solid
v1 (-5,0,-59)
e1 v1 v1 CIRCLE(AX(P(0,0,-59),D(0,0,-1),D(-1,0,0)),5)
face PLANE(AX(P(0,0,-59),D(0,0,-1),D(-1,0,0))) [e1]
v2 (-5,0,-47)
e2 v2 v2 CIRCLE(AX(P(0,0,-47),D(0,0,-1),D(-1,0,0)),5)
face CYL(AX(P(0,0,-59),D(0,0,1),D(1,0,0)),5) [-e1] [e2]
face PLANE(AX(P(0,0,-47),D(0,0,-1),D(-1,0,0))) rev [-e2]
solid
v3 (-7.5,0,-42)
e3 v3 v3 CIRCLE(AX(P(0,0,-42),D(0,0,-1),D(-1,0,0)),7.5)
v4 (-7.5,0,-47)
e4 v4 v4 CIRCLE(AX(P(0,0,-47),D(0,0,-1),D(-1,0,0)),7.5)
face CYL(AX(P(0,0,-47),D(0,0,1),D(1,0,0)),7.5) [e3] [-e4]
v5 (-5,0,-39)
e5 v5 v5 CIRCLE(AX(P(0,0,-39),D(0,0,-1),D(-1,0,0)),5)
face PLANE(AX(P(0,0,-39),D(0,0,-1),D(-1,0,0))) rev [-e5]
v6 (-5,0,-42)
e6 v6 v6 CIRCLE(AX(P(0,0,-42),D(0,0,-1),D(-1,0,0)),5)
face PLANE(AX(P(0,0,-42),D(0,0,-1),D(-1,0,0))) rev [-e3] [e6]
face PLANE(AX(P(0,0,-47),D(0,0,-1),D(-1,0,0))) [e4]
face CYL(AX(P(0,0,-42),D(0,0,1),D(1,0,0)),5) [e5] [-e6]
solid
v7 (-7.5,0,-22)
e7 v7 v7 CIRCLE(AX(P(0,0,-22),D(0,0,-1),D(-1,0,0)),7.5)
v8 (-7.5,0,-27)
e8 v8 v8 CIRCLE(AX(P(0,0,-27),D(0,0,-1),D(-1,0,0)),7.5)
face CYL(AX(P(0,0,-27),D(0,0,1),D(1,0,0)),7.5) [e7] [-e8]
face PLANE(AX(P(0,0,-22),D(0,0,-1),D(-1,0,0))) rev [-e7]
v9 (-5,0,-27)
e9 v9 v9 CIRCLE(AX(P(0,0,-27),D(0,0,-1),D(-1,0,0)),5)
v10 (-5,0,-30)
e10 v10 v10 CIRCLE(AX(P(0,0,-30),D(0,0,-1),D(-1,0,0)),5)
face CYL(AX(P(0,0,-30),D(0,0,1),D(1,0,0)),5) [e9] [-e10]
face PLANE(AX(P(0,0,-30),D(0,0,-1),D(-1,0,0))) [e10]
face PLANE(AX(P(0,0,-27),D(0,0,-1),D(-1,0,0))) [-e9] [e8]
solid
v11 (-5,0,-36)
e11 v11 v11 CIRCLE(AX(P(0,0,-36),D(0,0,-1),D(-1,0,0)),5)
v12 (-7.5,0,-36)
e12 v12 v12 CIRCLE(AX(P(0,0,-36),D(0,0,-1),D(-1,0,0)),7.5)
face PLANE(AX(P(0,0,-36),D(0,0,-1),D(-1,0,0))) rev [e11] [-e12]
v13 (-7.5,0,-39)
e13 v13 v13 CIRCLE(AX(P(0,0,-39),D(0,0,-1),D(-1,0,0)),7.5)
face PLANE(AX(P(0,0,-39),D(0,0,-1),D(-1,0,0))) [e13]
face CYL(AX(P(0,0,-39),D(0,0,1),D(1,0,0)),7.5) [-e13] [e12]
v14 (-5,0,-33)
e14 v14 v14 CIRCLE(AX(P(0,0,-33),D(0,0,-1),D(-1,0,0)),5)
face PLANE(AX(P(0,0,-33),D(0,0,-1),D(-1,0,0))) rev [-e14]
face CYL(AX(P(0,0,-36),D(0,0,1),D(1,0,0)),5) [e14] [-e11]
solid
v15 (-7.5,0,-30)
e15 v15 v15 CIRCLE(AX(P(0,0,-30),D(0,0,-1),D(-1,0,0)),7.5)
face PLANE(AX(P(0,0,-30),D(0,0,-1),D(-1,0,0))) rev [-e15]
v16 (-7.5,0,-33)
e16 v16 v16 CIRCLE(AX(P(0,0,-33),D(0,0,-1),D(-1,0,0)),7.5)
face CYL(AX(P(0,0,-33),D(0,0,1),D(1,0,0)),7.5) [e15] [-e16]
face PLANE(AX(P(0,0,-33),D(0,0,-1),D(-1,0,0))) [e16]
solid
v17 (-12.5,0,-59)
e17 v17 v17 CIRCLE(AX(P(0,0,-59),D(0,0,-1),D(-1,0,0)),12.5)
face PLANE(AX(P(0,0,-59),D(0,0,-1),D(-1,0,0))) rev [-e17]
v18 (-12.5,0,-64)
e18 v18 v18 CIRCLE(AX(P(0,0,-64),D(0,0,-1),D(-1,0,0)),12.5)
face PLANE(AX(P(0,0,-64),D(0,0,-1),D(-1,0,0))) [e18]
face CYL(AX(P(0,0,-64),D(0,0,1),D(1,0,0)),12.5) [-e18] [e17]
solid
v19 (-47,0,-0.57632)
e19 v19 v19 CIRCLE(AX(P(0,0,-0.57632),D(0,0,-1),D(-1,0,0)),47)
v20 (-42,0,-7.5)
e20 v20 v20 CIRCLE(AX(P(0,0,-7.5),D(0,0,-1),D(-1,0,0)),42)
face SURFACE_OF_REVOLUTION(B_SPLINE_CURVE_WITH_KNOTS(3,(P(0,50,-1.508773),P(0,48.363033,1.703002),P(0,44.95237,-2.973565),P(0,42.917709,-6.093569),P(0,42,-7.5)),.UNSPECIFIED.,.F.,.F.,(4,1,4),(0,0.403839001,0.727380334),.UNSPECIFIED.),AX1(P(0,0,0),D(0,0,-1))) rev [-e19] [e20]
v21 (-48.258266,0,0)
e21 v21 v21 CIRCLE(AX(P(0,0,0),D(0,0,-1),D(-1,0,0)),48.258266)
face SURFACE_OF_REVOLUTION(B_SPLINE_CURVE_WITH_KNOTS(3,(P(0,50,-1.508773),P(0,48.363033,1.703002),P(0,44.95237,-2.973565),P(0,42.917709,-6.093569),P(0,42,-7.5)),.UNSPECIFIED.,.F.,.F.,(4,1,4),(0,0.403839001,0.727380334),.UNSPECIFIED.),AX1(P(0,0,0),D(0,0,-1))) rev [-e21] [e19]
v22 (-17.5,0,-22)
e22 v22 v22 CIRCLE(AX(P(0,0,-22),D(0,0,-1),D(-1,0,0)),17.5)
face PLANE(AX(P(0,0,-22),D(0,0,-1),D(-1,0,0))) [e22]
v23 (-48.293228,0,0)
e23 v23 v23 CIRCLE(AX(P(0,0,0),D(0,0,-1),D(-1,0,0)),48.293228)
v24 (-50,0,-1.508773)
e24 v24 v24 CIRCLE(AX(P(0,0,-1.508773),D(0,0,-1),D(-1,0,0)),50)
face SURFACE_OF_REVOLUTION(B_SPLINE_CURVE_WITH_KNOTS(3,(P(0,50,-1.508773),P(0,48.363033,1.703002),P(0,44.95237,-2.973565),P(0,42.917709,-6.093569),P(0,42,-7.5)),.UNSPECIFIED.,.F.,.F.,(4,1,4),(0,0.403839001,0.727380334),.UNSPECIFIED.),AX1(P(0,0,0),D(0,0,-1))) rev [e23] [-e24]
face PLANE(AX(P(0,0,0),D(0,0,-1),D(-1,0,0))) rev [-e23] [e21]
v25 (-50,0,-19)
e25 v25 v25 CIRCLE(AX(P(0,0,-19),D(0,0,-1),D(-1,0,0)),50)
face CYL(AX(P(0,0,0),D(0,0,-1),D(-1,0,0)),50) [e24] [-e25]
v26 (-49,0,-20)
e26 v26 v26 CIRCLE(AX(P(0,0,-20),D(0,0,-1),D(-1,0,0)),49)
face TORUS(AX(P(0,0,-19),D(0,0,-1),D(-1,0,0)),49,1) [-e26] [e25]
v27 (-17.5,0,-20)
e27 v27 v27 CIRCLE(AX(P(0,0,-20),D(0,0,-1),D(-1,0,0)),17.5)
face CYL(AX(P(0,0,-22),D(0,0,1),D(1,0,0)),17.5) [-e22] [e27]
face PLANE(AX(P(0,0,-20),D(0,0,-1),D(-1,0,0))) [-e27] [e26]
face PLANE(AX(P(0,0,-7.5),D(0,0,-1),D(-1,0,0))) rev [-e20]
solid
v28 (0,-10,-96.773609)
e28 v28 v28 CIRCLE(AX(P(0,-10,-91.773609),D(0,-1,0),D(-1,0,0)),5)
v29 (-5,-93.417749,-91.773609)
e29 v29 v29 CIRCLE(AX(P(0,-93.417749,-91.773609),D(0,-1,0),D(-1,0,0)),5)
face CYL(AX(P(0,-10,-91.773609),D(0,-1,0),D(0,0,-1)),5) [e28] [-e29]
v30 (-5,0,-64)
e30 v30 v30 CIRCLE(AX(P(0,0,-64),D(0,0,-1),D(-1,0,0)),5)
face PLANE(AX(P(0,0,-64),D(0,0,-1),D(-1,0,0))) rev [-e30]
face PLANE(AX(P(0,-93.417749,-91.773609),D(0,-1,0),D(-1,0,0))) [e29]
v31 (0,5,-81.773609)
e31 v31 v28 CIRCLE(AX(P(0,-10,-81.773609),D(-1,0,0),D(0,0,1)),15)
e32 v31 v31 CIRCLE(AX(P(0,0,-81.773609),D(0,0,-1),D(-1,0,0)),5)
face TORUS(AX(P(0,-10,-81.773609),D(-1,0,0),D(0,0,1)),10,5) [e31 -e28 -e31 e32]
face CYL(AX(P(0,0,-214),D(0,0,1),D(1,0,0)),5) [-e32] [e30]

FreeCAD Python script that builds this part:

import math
import FreeCAD as App
import Part
import Sketcher
from FreeCAD import Vector
Q = App.Units.Quantity


def add_polygon(sketch, points):
    """Adds a closed chain of lines whose ends are joined by coincident constraints."""
    first, n = sketch.GeometryCount, len(points)
    for a, b in zip(points, points[1:] + points[:1]):
        sketch.addGeometry(Part.LineSegment(App.Vector(*a, 0), App.Vector(*b, 0)), False)
    for i in range(n):
        sketch.addConstraint(Sketcher.Constraint("Coincident", first + i, 2, first + (i + 1) % n, 1))

doc = App.newDocument("Part")
body = doc.addObject("PartDesign::Body", "Body")

# Sketch on YZ plane
sketch1 = body.newObject("Sketcher::SketchObject", "Sketch")
sketch1.AttachmentSupport = (doc.getObject("YZ_Plane"), [""])
sketch1.MapMode = "FlatFace"
sketch1.addGeometry([
    Part.LineSegment(Vector(42, -7.5, 0), Vector(0, -7.5, 0)),  # 0
    Part.LineSegment(Vector(0, -7.5, 0), Vector(0, -20, 0)),  # 1
    Part.LineSegment(Vector(0, -20, 0), Vector(49, -20, 0)),  # 2
    Part.ArcOfCircle(Part.Circle(Vector(49, -19, 0), Vector(0, 0, 1), 1), math.radians(-90), math.radians(0)),  # 3
    Part.LineSegment(Vector(50, -19, 0), Vector(50, -1.508773, 0)),  # 4
    Part.BSplineCurve([Vector(50, -1.508773, 0), Vector(49.451359, -0.432324, 0), Vector(48.873892, -0.008311, 0), Vector(48.293228, 0, 0)], [4, 4], [0, 0.135349479], False, 3, [1, 1, 1, 1], False),  # 5
    Part.LineSegment(Vector(48.293228, 0, 0), Vector(48.258266, 0, 0)),  # 6
    Part.BSplineCurve([Vector(48.258266, 0, 0), Vector(47.117838, -0.016256, 0), Vector(44.566167, -3.56578, 0), Vector(42.917709, -6.093569, 0), Vector(42, -7.5, 0)], [4, 1, 4], [0.138065657, 0.403839001, 0.727380334], False, 3, [1, 1, 1, 1, 1], False),  # 7
], False)
sketch1.addConstraint([
    Sketcher.Constraint("Block", 5),
    Sketcher.Constraint("Block", 7),
    Sketcher.Constraint("Coincident", 0, 2, 1, 1),
    Sketcher.Constraint("Coincident", 1, 2, 2, 1),
    Sketcher.Constraint("Tangent", 2, 2, 3, 1),
    Sketcher.Constraint("Tangent", 3, 2, 4, 1),
    Sketcher.Constraint("Coincident", 4, 2, 5, 1),
    Sketcher.Constraint("Coincident", 5, 2, 6, 1),
    Sketcher.Constraint("Coincident", 6, 2, 7, 1),
    Sketcher.Constraint("Coincident", 7, 2, 0, 1),
    Sketcher.Constraint("Horizontal", 0),
    Sketcher.Constraint("Vertical", 1),
    Sketcher.Constraint("Horizontal", 2),
    Sketcher.Constraint("Vertical", 4),
    Sketcher.Constraint("PointOnObject", 0, 2, -2),
    Sketcher.Constraint("Radius", 3, Q("1 mm")),
    Sketcher.Constraint("DistanceY", 1, 2, 1, 1, Q("12.5 mm")),
])
revolution = body.newObject("PartDesign::Revolution", "Revolution")
revolution.Profile = sketch1
revolution.ReferenceAxis = (sketch1, ["V_Axis"])
revolution.Angle = 360

# Sketch on XY plane
sketch2 = body.newObject("Sketcher::SketchObject", "Sketch001")
sketch2.AttachmentSupport = (doc.getObject("XY_Plane"), [""])
sketch2.MapMode = "FlatFace"
sketch2.AttachmentOffset = App.Placement(Vector(0, 0, -20), App.Rotation())
sketch2.addGeometry(Part.Circle(Vector(0, 0, 0), Vector(0, 0, 1), 18), False)
sketch2.addConstraint([
    Sketcher.Constraint("Coincident", 0, 3, -1, 1),
    Sketcher.Constraint("Diameter", 0, Q("35 mm")),
])
pad1 = body.newObject("PartDesign::Pad", "Pad")
pad1.Profile = sketch2
pad1.Length = 2
pad1.Reversed = True
body2 = doc.addObject("PartDesign::Body", "Body001")

# Sketch on XY plane
sketch3 = body2.newObject("Sketcher::SketchObject", "Sketch002")
sketch3.AttachmentSupport = (doc.getObject("XY_Plane001"), [""])
sketch3.MapMode = "FlatFace"
sketch3.AttachmentOffset = App.Placement(Vector(0, 0, -22), App.Rotation())
sketch3.addGeometry(Part.Circle(Vector(0, 0, 0), Vector(0, 0, 1), 8), False)
sketch3.addConstraint([
    Sketcher.Constraint("Coincident", 0, 3, -1, 1),
    Sketcher.Constraint("Diameter", 0, Q("15 mm")),
])
pad2 = body2.newObject("PartDesign::Pad", "Pad001")
pad2.Profile = sketch3
pad2.Length = 5
pad2.Reversed = True

# Sketch on XY plane
sketch4 = body2.newObject("Sketcher::SketchObject", "Sketch003")
sketch4.AttachmentSupport = (doc.getObject("XY_Plane001"), [""])
sketch4.MapMode = "FlatFace"
sketch4.AttachmentOffset = App.Placement(Vector(0, 0, -27), App.Rotation())
sketch4.addGeometry(Part.Circle(Vector(0, 0, 0), Vector(0, 0, 1), 5), False)
sketch4.addConstraint([
    Sketcher.Constraint("Coincident", 0, 3, -1, 1),
    Sketcher.Constraint("Diameter", 0, Q("10 mm")),
])
pad3 = body2.newObject("PartDesign::Pad", "Pad002")
pad3.Profile = sketch4
pad3.Length = 3
pad3.Reversed = True
body3 = doc.addObject("PartDesign::Body", "Body002")

# Sketch on XY plane
sketch5 = body3.newObject("Sketcher::SketchObject", "Sketch004")
sketch5.AttachmentSupport = (doc.getObject("XY_Plane002"), [""])
sketch5.MapMode = "FlatFace"
sketch5.AttachmentOffset = App.Placement(Vector(0, 0, -30), App.Rotation())
sketch5.addGeometry(Part.Circle(Vector(0, 0, 0), Vector(0, 0, 1), 8), False)
sketch5.addConstraint([
    Sketcher.Constraint("Coincident", 0, 3, -1, 1),
    Sketcher.Constraint("Diameter", 0, Q("15 mm")),
])
pad4 = body3.newObject("PartDesign::Pad", "Pad003")
pad4.Profile = sketch5
pad4.Length = 3
pad4.Reversed = True
body4 = doc.addObject("PartDesign::Body", "Body003")

# Sketch on XY plane
sketch6 = body4.newObject("Sketcher::SketchObject", "Sketch005")
sketch6.AttachmentSupport = (doc.getObject("XY_Plane003"), [""])
sketch6.MapMode = "FlatFace"
sketch6.AttachmentOffset = App.Placement(Vector(0, 0, -33), App.Rotation())
sketch6.addGeometry(Part.Circle(Vector(0, 0, 0), Vector(0, 0, 1), 5), False)
sketch6.addConstraint([
    Sketcher.Constraint("Coincident", 0, 3, -1, 1),
    Sketcher.Constraint("Diameter", 0, Q("10 mm")),
])
pad5 = body4.newObject("PartDesign::Pad", "Pad004")
pad5.Profile = sketch6
pad5.Length = 3
pad5.Reversed = True

# Sketch on XY plane
sketch7 = body4.newObject("Sketcher::SketchObject", "Sketch006")
sketch7.AttachmentSupport = (doc.getObject("XY_Plane003"), [""])
sketch7.MapMode = "FlatFace"
sketch7.AttachmentOffset = App.Placement(Vector(0, 0, -36), App.Rotation())
sketch7.addGeometry(Part.Circle(Vector(0, 0, 0), Vector(0, 0, 1), 8), False)
sketch7.addConstraint([
    Sketcher.Constraint("Coincident", 0, 3, -1, 1),
    Sketcher.Constraint("Diameter", 0, Q("15 mm")),
])
pad6 = body4.newObject("PartDesign::Pad", "Pad005")
pad6.Profile = sketch7
pad6.Length = 3
pad6.Reversed = True
body5 = doc.addObject("PartDesign::Body", "Body004")

# Sketch on XY plane
sketch8 = body5.newObject("Sketcher::SketchObject", "Sketch007")
sketch8.AttachmentSupport = (doc.getObject("XY_Plane004"), [""])
sketch8.MapMode = "FlatFace"
sketch8.AttachmentOffset = App.Placement(Vector(0, 0, -39), App.Rotation())
sketch8.addGeometry(Part.Circle(Vector(0, 0, 0), Vector(0, 0, 1), 5), False)
sketch8.addConstraint([
    Sketcher.Constraint("Coincident", 0, 3, -1, 1),
    Sketcher.Constraint("Diameter", 0, Q("10 mm")),
])
pad7 = body5.newObject("PartDesign::Pad", "Pad006")
pad7.Profile = sketch8
pad7.Length = 3
pad7.Reversed = True

# Sketch on XY plane
sketch9 = body5.newObject("Sketcher::SketchObject", "Sketch008")
sketch9.AttachmentSupport = (doc.getObject("XY_Plane004"), [""])
sketch9.MapMode = "FlatFace"
sketch9.AttachmentOffset = App.Placement(Vector(0, 0, -42), App.Rotation())
sketch9.addGeometry(Part.Circle(Vector(0, 0, 0), Vector(0, 0, 1), 8), False)
sketch9.addConstraint([
    Sketcher.Constraint("Coincident", 0, 3, -1, 1),
    Sketcher.Constraint("Diameter", 0, Q("15 mm")),
])
pad8 = body5.newObject("PartDesign::Pad", "Pad007")
pad8.Profile = sketch9
pad8.Length = 5
pad8.Reversed = True
body6 = doc.addObject("PartDesign::Body", "Body005")

# Sketch on XY plane
sketch10 = body6.newObject("Sketcher::SketchObject", "Sketch009")
sketch10.AttachmentSupport = (doc.getObject("XY_Plane005"), [""])
sketch10.MapMode = "FlatFace"
sketch10.AttachmentOffset = App.Placement(Vector(0, 0, -47), App.Rotation())
sketch10.addGeometry(Part.Circle(Vector(0, 0, 0), Vector(0, 0, 1), 5), False)
sketch10.addConstraint([
    Sketcher.Constraint("Coincident", 0, 3, -1, 1),
    Sketcher.Constraint("Diameter", 0, Q("10 mm")),
])
pad9 = body6.newObject("PartDesign::Pad", "Pad008")
pad9.Profile = sketch10
pad9.Length = 12
pad9.Reversed = True
body7 = doc.addObject("PartDesign::Body", "Body006")

# Sketch on XY plane
sketch11 = body7.newObject("Sketcher::SketchObject", "Sketch010")
sketch11.AttachmentSupport = (doc.getObject("XY_Plane006"), [""])
sketch11.MapMode = "FlatFace"
sketch11.AttachmentOffset = App.Placement(Vector(0, 0, -59), App.Rotation())
sketch11.addGeometry(Part.Circle(Vector(0, 0, 0), Vector(0, 0, 1), 12), False)
sketch11.addConstraint([
    Sketcher.Constraint("Coincident", 0, 3, -1, 1),
    Sketcher.Constraint("Diameter", 0, Q("25 mm")),
])
pad10 = body7.newObject("PartDesign::Pad", "Pad009")
pad10.Profile = sketch11
pad10.Length = 5
pad10.Reversed = True
body8 = doc.addObject("PartDesign::Body", "Body007")

# Sketch on XY plane
sketch12 = body8.newObject("Sketcher::SketchObject", "Sketch011")
sketch12.AttachmentSupport = (doc.getObject("XY_Plane007"), [""])
sketch12.MapMode = "FlatFace"
sketch12.AttachmentOffset = App.Placement(Vector(0, 0, -64), App.Rotation())
sketch12.addGeometry(Part.Circle(Vector(0, 0, 0), Vector(0, 0, 1), 5), False)
sketch12.addConstraint([
    Sketcher.Constraint("Coincident", 0, 3, -1, 1),
    Sketcher.Constraint("Diameter", 0, Q("10 mm")),
])
pad11 = body8.newObject("PartDesign::Pad", "Pad010")
pad11.Profile = sketch12
pad11.Length = 150
pad11.Reversed = True

# Sketch on XZ plane
sketch13 = body8.newObject("Sketcher::SketchObject", "Sketch012")
sketch13.AttachmentSupport = (doc.getObject("XZ_Plane007"), [""])
sketch13.MapMode = "FlatFace"
add_polygon(sketch13, [(-67, -231), (-67, -78), (60, -78), (60, -231)])  # lines 0-3
sketch13.addConstraint([
    Sketcher.Constraint("Vertical", 0),
    Sketcher.Constraint("Horizontal", 1),
    Sketcher.Constraint("Vertical", 2),
    Sketcher.Constraint("Horizontal", 3),
    Sketcher.Constraint("DistanceX", 1, 1, 1, 2, Q("126.965595 mm")),
    Sketcher.Constraint("DistanceY", 0, 1, 0, 2, Q("152.993543 mm")),
    Sketcher.Constraint("DistanceY", 0, 2, -1, 1, Q("78.432741 mm")),
    Sketcher.Constraint("DistanceX", 0, 2, -1, 1, Q("66.656938 mm")),
])
pocket1 = body8.newObject("PartDesign::Pocket", "Pocket")
pocket1.Profile = sketch13
pocket1.Length = 168
pocket1.Midplane = True

# Sketch on XY plane
sketch14 = body8.newObject("Sketcher::SketchObject", "Sketch013")
sketch14.AttachmentSupport = (doc.getObject("XY_Plane007"), [""])
sketch14.MapMode = "FlatFace"
sketch14.AttachmentOffset = App.Placement(Vector(0, 0, -78.432741), App.Rotation())
sketch14.addGeometry(Part.Circle(Vector(0, 0, 0), Vector(0, 0, 1), 5), False)
sketch14.addConstraint([
    Sketcher.Constraint("Coincident", 0, 3, -1, 1),
    Sketcher.Constraint("Diameter", 0, Q("10 mm")),
])

# Sketch on YZ plane
sketch15 = body8.newObject("Sketcher::SketchObject", "Sketch014")
sketch15.AttachmentSupport = (doc.getObject("YZ_Plane007"), [""])
sketch15.MapMode = "FlatFace"
sketch15.addGeometry([
    Part.LineSegment(Vector(0, -78.4, 0), Vector(0, -81.8, 0)),
    Part.ArcOfCircle(Part.Circle(Vector(-10, -81.8, 0), Vector(0, 0, 1), 10), math.radians(-90), math.radians(0)),
    Part.LineSegment(Vector(-10, -91.8, 0), Vector(-93.4, -91.8, 0)),
], False)
sketch15.addConstraint([
    Sketcher.Constraint("Tangent", 0, 2, 1, 2),
    Sketcher.Constraint("Tangent", 1, 1, 2, 1),
    Sketcher.Constraint("Vertical", 0),
    Sketcher.Constraint("Horizontal", 2),
    Sketcher.Constraint("PointOnObject", 0, 1, -2),
    Sketcher.Constraint("Radius", 1, Q("10 mm")),
    Sketcher.Constraint("DistanceX", 2, 2, 2, 1, Q("83.417749 mm")),
    Sketcher.Constraint("DistanceY", 0, 2, 0, 1, Q("3.340868 mm")),
    Sketcher.Constraint("DistanceY", 1, 3, -1, 1, Q("81.773609 mm")),
])
doc.recompute()

additivepipe = body8.newObject("PartDesign::AdditivePipe", "AdditivePipe")
additivepipe.Profile = sketch14
additivepipe.Spine = (sketch15, ["Edge1", "Edge2", "Edge3"])

doc.recompute()
